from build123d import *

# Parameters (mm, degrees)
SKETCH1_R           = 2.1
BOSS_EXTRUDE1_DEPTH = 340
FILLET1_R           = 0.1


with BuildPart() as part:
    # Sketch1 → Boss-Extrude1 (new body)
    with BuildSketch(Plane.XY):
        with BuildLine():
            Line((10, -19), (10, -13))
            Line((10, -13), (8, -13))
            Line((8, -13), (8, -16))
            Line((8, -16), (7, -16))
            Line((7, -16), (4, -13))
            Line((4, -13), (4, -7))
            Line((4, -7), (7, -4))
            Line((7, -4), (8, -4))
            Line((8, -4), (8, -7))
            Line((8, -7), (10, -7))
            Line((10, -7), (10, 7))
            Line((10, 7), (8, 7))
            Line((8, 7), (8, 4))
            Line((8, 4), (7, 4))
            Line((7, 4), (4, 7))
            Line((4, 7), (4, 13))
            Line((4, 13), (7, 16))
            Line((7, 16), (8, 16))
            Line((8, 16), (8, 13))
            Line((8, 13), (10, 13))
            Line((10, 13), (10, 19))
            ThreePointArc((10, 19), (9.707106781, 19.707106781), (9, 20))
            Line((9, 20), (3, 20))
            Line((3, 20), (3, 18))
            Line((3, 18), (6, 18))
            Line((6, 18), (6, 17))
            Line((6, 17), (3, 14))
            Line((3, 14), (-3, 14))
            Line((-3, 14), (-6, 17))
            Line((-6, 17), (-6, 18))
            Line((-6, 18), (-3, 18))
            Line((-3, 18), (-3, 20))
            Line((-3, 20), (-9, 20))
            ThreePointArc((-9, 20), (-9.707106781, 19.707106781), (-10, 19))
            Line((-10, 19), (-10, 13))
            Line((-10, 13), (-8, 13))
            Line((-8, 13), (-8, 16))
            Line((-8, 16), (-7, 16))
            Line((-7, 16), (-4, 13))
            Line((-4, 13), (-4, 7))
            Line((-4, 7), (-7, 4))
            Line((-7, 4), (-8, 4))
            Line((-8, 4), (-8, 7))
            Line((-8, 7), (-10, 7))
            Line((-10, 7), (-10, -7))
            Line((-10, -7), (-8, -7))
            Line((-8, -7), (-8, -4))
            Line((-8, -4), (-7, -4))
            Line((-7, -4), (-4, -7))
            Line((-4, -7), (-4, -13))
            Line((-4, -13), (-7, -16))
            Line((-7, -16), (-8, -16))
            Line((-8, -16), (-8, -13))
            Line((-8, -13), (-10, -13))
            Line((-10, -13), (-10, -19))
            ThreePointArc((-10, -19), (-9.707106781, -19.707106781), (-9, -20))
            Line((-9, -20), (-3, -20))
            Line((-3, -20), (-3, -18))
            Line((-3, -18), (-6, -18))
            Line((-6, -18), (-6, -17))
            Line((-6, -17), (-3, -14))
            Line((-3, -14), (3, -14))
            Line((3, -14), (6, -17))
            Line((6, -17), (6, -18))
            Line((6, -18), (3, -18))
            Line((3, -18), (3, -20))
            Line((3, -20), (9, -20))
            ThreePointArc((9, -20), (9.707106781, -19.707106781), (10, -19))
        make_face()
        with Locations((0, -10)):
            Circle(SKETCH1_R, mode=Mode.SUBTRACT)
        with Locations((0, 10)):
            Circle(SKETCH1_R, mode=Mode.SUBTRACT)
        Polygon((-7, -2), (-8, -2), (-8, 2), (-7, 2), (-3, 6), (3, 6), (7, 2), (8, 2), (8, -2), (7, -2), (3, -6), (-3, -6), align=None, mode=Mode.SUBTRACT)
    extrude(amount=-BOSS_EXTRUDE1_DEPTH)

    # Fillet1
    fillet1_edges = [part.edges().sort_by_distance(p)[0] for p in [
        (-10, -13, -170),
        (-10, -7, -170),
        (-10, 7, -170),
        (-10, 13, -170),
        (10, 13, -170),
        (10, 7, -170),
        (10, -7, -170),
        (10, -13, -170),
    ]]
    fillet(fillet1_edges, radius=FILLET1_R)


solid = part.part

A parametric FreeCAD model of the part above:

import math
import FreeCAD as App
import Part
import Sketcher

V = App.Vector


def edges_at(feature, points):
    """Names of the edges that pass closest to the given points."""
    edges = feature.Shape.Edges
    near = lambda p: min(range(len(edges)), key=lambda i: edges[i].distToShape(Part.Vertex(*p))[0])
    return sorted({f"Edge{near(p) + 1}" for p in points})

doc = App.newDocument("Part")
body = doc.addObject("PartDesign::Body", "Body")

sketch1 = body.newObject("Sketcher::SketchObject", "Sketch")
sketch1.AttachmentSupport = (doc.getObject("XY_Plane"), [""])
sketch1.MapMode = "FlatFace"
sketch1.addGeometry([
    Part.LineSegment(V(10, -19, 0), V(10, -13, 0)),
    Part.LineSegment(V(10, -13, 0), V(8, -13, 0)),
    Part.LineSegment(V(8, -13, 0), V(8, -16, 0)),
    Part.LineSegment(V(8, -16, 0), V(7, -16, 0)),
    Part.LineSegment(V(7, -16, 0), V(4, -13, 0)),
    Part.LineSegment(V(4, -13, 0), V(4, -7, 0)),
    Part.LineSegment(V(4, -7, 0), V(7, -4, 0)),
    Part.LineSegment(V(7, -4, 0), V(8, -4, 0)),
    Part.LineSegment(V(8, -4, 0), V(8, -7, 0)),
    Part.LineSegment(V(8, -7, 0), V(10, -7, 0)),
    Part.LineSegment(V(10, -7, 0), V(10, 7, 0)),
    Part.LineSegment(V(10, 7, 0), V(8, 7, 0)),
    Part.LineSegment(V(8, 7, 0), V(8, 4, 0)),
    Part.LineSegment(V(8, 4, 0), V(7, 4, 0)),
    Part.LineSegment(V(7, 4, 0), V(4, 7, 0)),
    Part.LineSegment(V(4, 7, 0), V(4, 13, 0)),
    Part.LineSegment(V(4, 13, 0), V(7, 16, 0)),
    Part.LineSegment(V(7, 16, 0), V(8, 16, 0)),
    Part.LineSegment(V(8, 16, 0), V(8, 13, 0)),
    Part.LineSegment(V(8, 13, 0), V(10, 13, 0)),
    Part.LineSegment(V(10, 13, 0), V(10, 19, 0)),
    Part.ArcOfCircle(Part.Circle(V(9, 19, 0), V(0, 0, 1), 1), math.radians(0), math.radians(90)),
    Part.LineSegment(V(9, 20, 0), V(3, 20, 0)),
    Part.LineSegment(V(3, 20, 0), V(3, 18, 0)),
    Part.LineSegment(V(3, 18, 0), V(6, 18, 0)),
    Part.LineSegment(V(6, 18, 0), V(6, 17, 0)),
    Part.LineSegment(V(6, 17, 0), V(3, 14, 0)),
    Part.LineSegment(V(3, 14, 0), V(-3, 14, 0)),
    Part.LineSegment(V(-3, 14, 0), V(-6, 17, 0)),
    Part.LineSegment(V(-6, 17, 0), V(-6, 18, 0)),
    Part.LineSegment(V(-6, 18, 0), V(-3, 18, 0)),
    Part.LineSegment(V(-3, 18, 0), V(-3, 20, 0)),
    Part.LineSegment(V(-3, 20, 0), V(-9, 20, 0)),
    Part.ArcOfCircle(Part.Circle(V(-9, 19, 0), V(0, 0, 1), 1), math.radians(90), math.radians(180)),
    Part.LineSegment(V(-10, 19, 0), V(-10, 13, 0)),
    Part.LineSegment(V(-10, 13, 0), V(-8, 13, 0)),
    Part.LineSegment(V(-8, 13, 0), V(-8, 16, 0)),
    Part.LineSegment(V(-8, 16, 0), V(-7, 16, 0)),
    Part.LineSegment(V(-7, 16, 0), V(-4, 13, 0)),
    Part.LineSegment(V(-4, 13, 0), V(-4, 7, 0)),
    Part.LineSegment(V(-4, 7, 0), V(-7, 4, 0)),
    Part.LineSegment(V(-7, 4, 0), V(-8, 4, 0)),
    Part.LineSegment(V(-8, 4, 0), V(-8, 7, 0)),
    Part.LineSegment(V(-8, 7, 0), V(-10, 7, 0)),
    Part.LineSegment(V(-10, 7, 0), V(-10, -7, 0)),
    Part.LineSegment(V(-10, -7, 0), V(-8, -7, 0)),
    Part.LineSegment(V(-8, -7, 0), V(-8, -4, 0)),
    Part.LineSegment(V(-8, -4, 0), V(-7, -4, 0)),
    Part.LineSegment(V(-7, -4, 0), V(-4, -7, 0)),
    Part.LineSegment(V(-4, -7, 0), V(-4, -13, 0)),
    Part.LineSegment(V(-4, -13, 0), V(-7, -16, 0)),
    Part.LineSegment(V(-7, -16, 0), V(-8, -16, 0)),
    Part.LineSegment(V(-8, -16, 0), V(-8, -13, 0)),
    Part.LineSegment(V(-8, -13, 0), V(-10, -13, 0)),
    Part.LineSegment(V(-10, -13, 0), V(-10, -19, 0)),
    Part.ArcOfCircle(Part.Circle(V(-9, -19, 0), V(0, 0, 1), 1), math.radians(-180), math.radians(-90)),
    Part.LineSegment(V(-9, -20, 0), V(-3, -20, 0)),
    Part.LineSegment(V(-3, -20, 0), V(-3, -18, 0)),
    Part.LineSegment(V(-3, -18, 0), V(-6, -18, 0)),
    Part.LineSegment(V(-6, -18, 0), V(-6, -17, 0)),
    Part.LineSegment(V(-6, -17, 0), V(-3, -14, 0)),
    Part.LineSegment(V(-3, -14, 0), V(3, -14, 0)),
    Part.LineSegment(V(3, -14, 0), V(6, -17, 0)),
    Part.LineSegment(V(6, -17, 0), V(6, -18, 0)),
    Part.LineSegment(V(6, -18, 0), V(3, -18, 0)),
    Part.LineSegment(V(3, -18, 0), V(3, -20, 0)),
    Part.LineSegment(V(3, -20, 0), V(9, -20, 0)),
    Part.ArcOfCircle(Part.Circle(V(9, -19, 0), V(0, 0, 1), 1), math.radians(-90), math.radians(0)),
    Part.Circle(V(0, -10, 0), V(0, 0, 1), 2.1),
    Part.LineSegment(V(-3, -6, 0), V(-7, -2, 0)),
    Part.LineSegment(V(-7, -2, 0), V(-8, -2, 0)),
    Part.LineSegment(V(-8, -2, 0), V(-8, 2, 0)),
    Part.LineSegment(V(-8, 2, 0), V(-7, 2, 0)),
    Part.LineSegment(V(-7, 2, 0), V(-3, 6, 0)),
    Part.LineSegment(V(-3, 6, 0), V(3, 6, 0)),
    Part.LineSegment(V(3, 6, 0), V(7, 2, 0)),
    Part.LineSegment(V(7, 2, 0), V(8, 2, 0)),
    Part.LineSegment(V(8, 2, 0), V(8, -2, 0)),
    Part.LineSegment(V(8, -2, 0), V(7, -2, 0)),
    Part.LineSegment(V(7, -2, 0), V(3, -6, 0)),
    Part.LineSegment(V(3, -6, 0), V(-3, -6, 0)),
    Part.Circle(V(0, 10, 0), V(0, 0, 1), 2.1),
], False)
sketch1.addConstraint([
    Sketcher.Constraint("Coincident", 0, 2, 1, 1),
    Sketcher.Constraint("Coincident", 1, 2, 2, 1),
    Sketcher.Constraint("Coincident", 2, 2, 3, 1),
    Sketcher.Constraint("Coincident", 3, 2, 4, 1),
    Sketcher.Constraint("Coincident", 4, 2, 5, 1),
    Sketcher.Constraint("Coincident", 5, 2, 6, 1),
    Sketcher.Constraint("Coincident", 6, 2, 7, 1),
    Sketcher.Constraint("Coincident", 7, 2, 8, 1),
    Sketcher.Constraint("Coincident", 8, 2, 9, 1),
    Sketcher.Constraint("Coincident", 9, 2, 10, 1),
    Sketcher.Constraint("Coincident", 10, 2, 11, 1),
    Sketcher.Constraint("Coincident", 11, 2, 12, 1),
    Sketcher.Constraint("Coincident", 12, 2, 13, 1),
    Sketcher.Constraint("Coincident", 13, 2, 14, 1),
    Sketcher.Constraint("Coincident", 14, 2, 15, 1),
    Sketcher.Constraint("Coincident", 15, 2, 16, 1),
    Sketcher.Constraint("Coincident", 16, 2, 17, 1),
    Sketcher.Constraint("Coincident", 17, 2, 18, 1),
    Sketcher.Constraint("Coincident", 18, 2, 19, 1),
    Sketcher.Constraint("Coincident", 19, 2, 20, 1),
    Sketcher.Constraint("Tangent", 20, 2, 21, 1),
    Sketcher.Constraint("Tangent", 21, 2, 22, 1),
    Sketcher.Constraint("Coincident", 22, 2, 23, 1),
    Sketcher.Constraint("Coincident", 23, 2, 24, 1),
    Sketcher.Constraint("Coincident", 24, 2, 25, 1),
    Sketcher.Constraint("Coincident", 25, 2, 26, 1),
    Sketcher.Constraint("Coincident", 26, 2, 27, 1),
    Sketcher.Constraint("Coincident", 27, 2, 28, 1),
    Sketcher.Constraint("Coincident", 28, 2, 29, 1),
    Sketcher.Constraint("Coincident", 29, 2, 30, 1),
    Sketcher.Constraint("Coincident", 30, 2, 31, 1),
    Sketcher.Constraint("Coincident", 31, 2, 32, 1),
    Sketcher.Constraint("Tangent", 32, 2, 33, 1),
    Sketcher.Constraint("Tangent", 33, 2, 34, 1),
    Sketcher.Constraint("Coincident", 34, 2, 35, 1),
    Sketcher.Constraint("Coincident", 35, 2, 36, 1),
    Sketcher.Constraint("Coincident", 36, 2, 37, 1),
    Sketcher.Constraint("Coincident", 37, 2, 38, 1),
    Sketcher.Constraint("Coincident", 38, 2, 39, 1),
    Sketcher.Constraint("Coincident", 39, 2, 40, 1),
    Sketcher.Constraint("Coincident", 40, 2, 41, 1),
    Sketcher.Constraint("Coincident", 41, 2, 42, 1),
    Sketcher.Constraint("Coincident", 42, 2, 43, 1),
    Sketcher.Constraint("Coincident", 43, 2, 44, 1),
    Sketcher.Constraint("Coincident", 44, 2, 45, 1),
    Sketcher.Constraint("Coincident", 45, 2, 46, 1),
    Sketcher.Constraint("Coincident", 46, 2, 47, 1),
    Sketcher.Constraint("Coincident", 47, 2, 48, 1),
    Sketcher.Constraint("Coincident", 48, 2, 49, 1),
    Sketcher.Constraint("Coincident", 49, 2, 50, 1),
    Sketcher.Constraint("Coincident", 50, 2, 51, 1),
    Sketcher.Constraint("Coincident", 51, 2, 52, 1),
    Sketcher.Constraint("Coincident", 52, 2, 53, 1),
    Sketcher.Constraint("Coincident", 53, 2, 54, 1),
    Sketcher.Constraint("Tangent", 54, 2, 55, 1),
    Sketcher.Constraint("Tangent", 55, 2, 56, 1),
    Sketcher.Constraint("Coincident", 56, 2, 57, 1),
    Sketcher.Constraint("Coincident", 57, 2, 58, 1),
    Sketcher.Constraint("Coincident", 58, 2, 59, 1),
    Sketcher.Constraint("Coincident", 59, 2, 60, 1),
    Sketcher.Constraint("Coincident", 60, 2, 61, 1),
    Sketcher.Constraint("Coincident", 61, 2, 62, 1),
    Sketcher.Constraint("Coincident", 62, 2, 63, 1),
    Sketcher.Constraint("Coincident", 63, 2, 64, 1),
    Sketcher.Constraint("Coincident", 64, 2, 65, 1),
    Sketcher.Constraint("Coincident", 65, 2, 66, 1),
    Sketcher.Constraint("Tangent", 66, 2, 67, 1),
    Sketcher.Constraint("Tangent", 67, 2, 0, 1),
    Sketcher.Constraint("Coincident", 69, 2, 70, 1),
    Sketcher.Constraint("Coincident", 70, 2, 71, 1),
    Sketcher.Constraint("Coincident", 71, 2, 72, 1),
    Sketcher.Constraint("Coincident", 72, 2, 73, 1),
    Sketcher.Constraint("Coincident", 73, 2, 74, 1),
    Sketcher.Constraint("Coincident", 74, 2, 75, 1),
    Sketcher.Constraint("Coincident", 75, 2, 76, 1),
    Sketcher.Constraint("Coincident", 76, 2, 77, 1),
    Sketcher.Constraint("Coincident", 77, 2, 78, 1),
    Sketcher.Constraint("Coincident", 78, 2, 79, 1),
    Sketcher.Constraint("Coincident", 79, 2, 80, 1),
    Sketcher.Constraint("Coincident", 80, 2, 69, 1),
    Sketcher.Constraint("Vertical", 0),
    Sketcher.Constraint("Horizontal", 1),
    Sketcher.Constraint("Vertical", 2),
    Sketcher.Constraint("Horizontal", 3),
    Sketcher.Constraint("Vertical", 5),
    Sketcher.Constraint("Horizontal", 7),
    Sketcher.Constraint("Vertical", 8),
    Sketcher.Constraint("Horizontal", 9),
    Sketcher.Constraint("Vertical", 10),
    Sketcher.Constraint("Horizontal", 11),
    Sketcher.Constraint("Vertical", 12),
    Sketcher.Constraint("Horizontal", 13),
    Sketcher.Constraint("Vertical", 15),
    Sketcher.Constraint("Horizontal", 17),
    Sketcher.Constraint("Vertical", 18),
    Sketcher.Constraint("Horizontal", 19),
    Sketcher.Constraint("Vertical", 20),
    Sketcher.Constraint("Horizontal", 22),
    Sketcher.Constraint("Vertical", 23),
    Sketcher.Constraint("Horizontal", 24),
    Sketcher.Constraint("Vertical", 25),
    Sketcher.Constraint("Horizontal", 27),
    Sketcher.Constraint("Vertical", 29),
    Sketcher.Constraint("Horizontal", 30),
    Sketcher.Constraint("Vertical", 31),
    Sketcher.Constraint("Horizontal", 32),
    Sketcher.Constraint("Vertical", 34),
    Sketcher.Constraint("Horizontal", 35),
    Sketcher.Constraint("Vertical", 36),
    Sketcher.Constraint("Horizontal", 37),
    Sketcher.Constraint("Vertical", 39),
    Sketcher.Constraint("Horizontal", 41),
    Sketcher.Constraint("Vertical", 42),
    Sketcher.Constraint("Horizontal", 43),
    Sketcher.Constraint("Vertical", 44),
    Sketcher.Constraint("Horizontal", 45),
    Sketcher.Constraint("Vertical", 46),
    Sketcher.Constraint("Horizontal", 47),
    Sketcher.Constraint("Vertical", 49),
    Sketcher.Constraint("Horizontal", 51),
    Sketcher.Constraint("Vertical", 52),
    Sketcher.Constraint("Horizontal", 53),
    Sketcher.Constraint("Vertical", 54),
    Sketcher.Constraint("Horizontal", 56),
    Sketcher.Constraint("Vertical", 57),
    Sketcher.Constraint("Horizontal", 58),
    Sketcher.Constraint("Vertical", 59),
    Sketcher.Constraint("Horizontal", 61),
    Sketcher.Constraint("Vertical", 63),
    Sketcher.Constraint("Horizontal", 64),
    Sketcher.Constraint("Vertical", 65),
    Sketcher.Constraint("Horizontal", 66),
    Sketcher.Constraint("Horizontal", 70),
    Sketcher.Constraint("Vertical", 71),
    Sketcher.Constraint("Horizontal", 72),
    Sketcher.Constraint("Horizontal", 74),
    Sketcher.Constraint("Horizontal", 76),
    Sketcher.Constraint("Vertical", 77),
    Sketcher.Constraint("Horizontal", 78),
    Sketcher.Constraint("Horizontal", 80),
    Sketcher.Constraint("Equal", 21, 33),
    Sketcher.Constraint("Equal", 33, 55),
    Sketcher.Constraint("Equal", 55, 67),
    Sketcher.Constraint("Equal", 68, 81),
    Sketcher.Constraint("Symmetric", 21, 3, 55, 3, -1, 1),
    Sketcher.Constraint("Symmetric", 33, 3, 67, 3, -1, 1),
    Sketcher.Constraint("Symmetric", 68, 3, 81, 3, -1, 1),
    Sketcher.Constraint("Symmetric", 1, 2, 35, 2, -1, 1),
    Sketcher.Constraint("Symmetric", 3, 2, 37, 2, -1, 1),
    Sketcher.Constraint("Symmetric", 4, 2, 38, 2, -1, 1),
    Sketcher.Constraint("Symmetric", 6, 2, 40, 2, -1, 1),
    Sketcher.Constraint("Symmetric", 8, 2, 42, 2, -1, 1),
    Sketcher.Constraint("Symmetric", 10, 2, 44, 2, -1, 1),
    Sketcher.Constraint("Symmetric", 12, 2, 46, 2, -1, 1),
    Sketcher.Constraint("Symmetric", 14, 2, 48, 2, -1, 1),
    Sketcher.Constraint("Symmetric", 16, 2, 50, 2, -1, 1),
    Sketcher.Constraint("Symmetric", 18, 2, 52, 2, -1, 1),
    Sketcher.Constraint("Symmetric", 23, 2, 57, 2, -1, 1),
    Sketcher.Constraint("Symmetric", 25, 2, 59, 2, -1, 1),
    Sketcher.Constraint("Symmetric", 26, 2, 60, 2, -1, 1),
    Sketcher.Constraint("Symmetric", 28, 2, 62, 2, -1, 1),
    Sketcher.Constraint("Symmetric", 30, 2, 64, 2, -1, 1),
    Sketcher.Constraint("Symmetric", 69, 2, 75, 2, -1, 1),
    Sketcher.Constraint("Symmetric", 71, 2, 77, 2, -1, 1),
    Sketcher.Constraint("Symmetric", 73, 2, 79, 2, -1, 1),
    Sketcher.Constraint("Symmetric", 21, 3, 33, 3, -2),
    Sketcher.Constraint("Symmetric", 25, 2, 28, 2, -2),
    Sketcher.Constraint("Symmetric", 23, 2, 30, 2, -2),
    Sketcher.Constraint("Symmetric", 18, 2, 35, 2, -2),
    Sketcher.Constraint("Symmetric", 16, 2, 37, 2, -2),
    Sketcher.Constraint("Symmetric", 15, 2, 38, 2, -2),
    Sketcher.Constraint("Symmetric", 13, 2, 40, 2, -2),
    Sketcher.Constraint("Symmetric", 11, 2, 42, 2, -2),
    Sketcher.Constraint("Symmetric", 72, 2, 75, 2, -2),
    Sketcher.Constraint("PointOnObject", 68, 3, -2),
    Sketcher.Constraint("Perpendicular", 4, 6),
    Sketcher.Constraint("Perpendicular", 6, 14),
    Sketcher.Constraint("Perpendicular", 14, 16),
    Sketcher.Constraint("Parallel", 16, 26),
    Sketcher.Constraint("Perpendicular", 26, 28),
    Sketcher.Constraint("Perpendicular", 38, 40),
    Sketcher.Constraint("Perpendicular", 40, 48),
    Sketcher.Constraint("Perpendicular", 48, 50),
    Sketcher.Constraint("Perpendicular", 60, 62),
    Sketcher.Constraint("Parallel", 62, 69),
    Sketcher.Constraint("Perpendicular", 69, 73),
    Sketcher.Constraint("Perpendicular", 73, 75),
    Sketcher.Constraint("Perpendicular", 75, 79),
    Sketcher.Constraint("Horizontal", 1, 2, 4, 2),
    Sketcher.Constraint("Horizontal", 5, 2, 8, 2),
    Sketcher.Constraint("Vertical", 3, 2, 6, 2),
    Sketcher.Constraint("Vertical", 2, 2, 7, 2),
    Sketcher.Constraint("Vertical", 0, 2, 9, 2),
    Sketcher.Constraint("Vertical", 23, 2, 26, 2),
    Sketcher.Constraint("Vertical", 50, 2, 69, 2),
    Sketcher.Constraint("Vertical", 52, 2, 70, 2),
    Sketcher.Constraint("Vertical", 60, 2, 73, 2),
    Sketcher.Constraint("Equal", 22, 27),
    Sketcher.Constraint("Equal", 80, 0),
    Sketcher.Constraint("Equal", 64, 2),
    Sketcher.Constraint("Equal", 0, 5),
    Sketcher.Constraint("Equal", 53, 23),
    Sketcher.Constraint("Equal", 78, 25),
    Sketcher.Constraint("Radius", 21, 1.0),
    Sketcher.Constraint("Diameter", 68, 4.2),
    Sketcher.Constraint("DistanceX", 1, 2, 1, 1, 2.0),
    Sketcher.Constraint("DistanceX", 3, 2, 3, 1, 1.0),
    Sketcher.Constraint("DistanceX", 22, 2, 22, 1, 6.0),
    Sketcher.Constraint("DistanceX", 24, 1, 24, 2, 3.0),
    Sketcher.Constraint("DistanceY", 10, 1, 10, 2, 14.0),
    Sketcher.Constraint("DistanceY", 71, 1, 71, 2, 4.0),
    Sketcher.Constraint("DistanceY", 68, 3, -1, 1, 10.0),
])
pad1 = body.newObject("PartDesign::Pad", "Pad")
pad1.Profile = sketch1
pad1.Length = 340
pad1.Reversed = True
doc.recompute()

fillet = body.newObject("PartDesign::Fillet", "Fillet")
fillet.Base = (pad1, edges_at(pad1, [
    (-10, -13, -170),
    (-10, -7, -170),
    (-10, 7, -170),
    (-10, 13, -170),
    (10, 13, -170),
    (10, 7, -170),
    (10, -7, -170),
    (10, -13, -170),
]))
fillet.Radius = 0.1

doc.recompute()
